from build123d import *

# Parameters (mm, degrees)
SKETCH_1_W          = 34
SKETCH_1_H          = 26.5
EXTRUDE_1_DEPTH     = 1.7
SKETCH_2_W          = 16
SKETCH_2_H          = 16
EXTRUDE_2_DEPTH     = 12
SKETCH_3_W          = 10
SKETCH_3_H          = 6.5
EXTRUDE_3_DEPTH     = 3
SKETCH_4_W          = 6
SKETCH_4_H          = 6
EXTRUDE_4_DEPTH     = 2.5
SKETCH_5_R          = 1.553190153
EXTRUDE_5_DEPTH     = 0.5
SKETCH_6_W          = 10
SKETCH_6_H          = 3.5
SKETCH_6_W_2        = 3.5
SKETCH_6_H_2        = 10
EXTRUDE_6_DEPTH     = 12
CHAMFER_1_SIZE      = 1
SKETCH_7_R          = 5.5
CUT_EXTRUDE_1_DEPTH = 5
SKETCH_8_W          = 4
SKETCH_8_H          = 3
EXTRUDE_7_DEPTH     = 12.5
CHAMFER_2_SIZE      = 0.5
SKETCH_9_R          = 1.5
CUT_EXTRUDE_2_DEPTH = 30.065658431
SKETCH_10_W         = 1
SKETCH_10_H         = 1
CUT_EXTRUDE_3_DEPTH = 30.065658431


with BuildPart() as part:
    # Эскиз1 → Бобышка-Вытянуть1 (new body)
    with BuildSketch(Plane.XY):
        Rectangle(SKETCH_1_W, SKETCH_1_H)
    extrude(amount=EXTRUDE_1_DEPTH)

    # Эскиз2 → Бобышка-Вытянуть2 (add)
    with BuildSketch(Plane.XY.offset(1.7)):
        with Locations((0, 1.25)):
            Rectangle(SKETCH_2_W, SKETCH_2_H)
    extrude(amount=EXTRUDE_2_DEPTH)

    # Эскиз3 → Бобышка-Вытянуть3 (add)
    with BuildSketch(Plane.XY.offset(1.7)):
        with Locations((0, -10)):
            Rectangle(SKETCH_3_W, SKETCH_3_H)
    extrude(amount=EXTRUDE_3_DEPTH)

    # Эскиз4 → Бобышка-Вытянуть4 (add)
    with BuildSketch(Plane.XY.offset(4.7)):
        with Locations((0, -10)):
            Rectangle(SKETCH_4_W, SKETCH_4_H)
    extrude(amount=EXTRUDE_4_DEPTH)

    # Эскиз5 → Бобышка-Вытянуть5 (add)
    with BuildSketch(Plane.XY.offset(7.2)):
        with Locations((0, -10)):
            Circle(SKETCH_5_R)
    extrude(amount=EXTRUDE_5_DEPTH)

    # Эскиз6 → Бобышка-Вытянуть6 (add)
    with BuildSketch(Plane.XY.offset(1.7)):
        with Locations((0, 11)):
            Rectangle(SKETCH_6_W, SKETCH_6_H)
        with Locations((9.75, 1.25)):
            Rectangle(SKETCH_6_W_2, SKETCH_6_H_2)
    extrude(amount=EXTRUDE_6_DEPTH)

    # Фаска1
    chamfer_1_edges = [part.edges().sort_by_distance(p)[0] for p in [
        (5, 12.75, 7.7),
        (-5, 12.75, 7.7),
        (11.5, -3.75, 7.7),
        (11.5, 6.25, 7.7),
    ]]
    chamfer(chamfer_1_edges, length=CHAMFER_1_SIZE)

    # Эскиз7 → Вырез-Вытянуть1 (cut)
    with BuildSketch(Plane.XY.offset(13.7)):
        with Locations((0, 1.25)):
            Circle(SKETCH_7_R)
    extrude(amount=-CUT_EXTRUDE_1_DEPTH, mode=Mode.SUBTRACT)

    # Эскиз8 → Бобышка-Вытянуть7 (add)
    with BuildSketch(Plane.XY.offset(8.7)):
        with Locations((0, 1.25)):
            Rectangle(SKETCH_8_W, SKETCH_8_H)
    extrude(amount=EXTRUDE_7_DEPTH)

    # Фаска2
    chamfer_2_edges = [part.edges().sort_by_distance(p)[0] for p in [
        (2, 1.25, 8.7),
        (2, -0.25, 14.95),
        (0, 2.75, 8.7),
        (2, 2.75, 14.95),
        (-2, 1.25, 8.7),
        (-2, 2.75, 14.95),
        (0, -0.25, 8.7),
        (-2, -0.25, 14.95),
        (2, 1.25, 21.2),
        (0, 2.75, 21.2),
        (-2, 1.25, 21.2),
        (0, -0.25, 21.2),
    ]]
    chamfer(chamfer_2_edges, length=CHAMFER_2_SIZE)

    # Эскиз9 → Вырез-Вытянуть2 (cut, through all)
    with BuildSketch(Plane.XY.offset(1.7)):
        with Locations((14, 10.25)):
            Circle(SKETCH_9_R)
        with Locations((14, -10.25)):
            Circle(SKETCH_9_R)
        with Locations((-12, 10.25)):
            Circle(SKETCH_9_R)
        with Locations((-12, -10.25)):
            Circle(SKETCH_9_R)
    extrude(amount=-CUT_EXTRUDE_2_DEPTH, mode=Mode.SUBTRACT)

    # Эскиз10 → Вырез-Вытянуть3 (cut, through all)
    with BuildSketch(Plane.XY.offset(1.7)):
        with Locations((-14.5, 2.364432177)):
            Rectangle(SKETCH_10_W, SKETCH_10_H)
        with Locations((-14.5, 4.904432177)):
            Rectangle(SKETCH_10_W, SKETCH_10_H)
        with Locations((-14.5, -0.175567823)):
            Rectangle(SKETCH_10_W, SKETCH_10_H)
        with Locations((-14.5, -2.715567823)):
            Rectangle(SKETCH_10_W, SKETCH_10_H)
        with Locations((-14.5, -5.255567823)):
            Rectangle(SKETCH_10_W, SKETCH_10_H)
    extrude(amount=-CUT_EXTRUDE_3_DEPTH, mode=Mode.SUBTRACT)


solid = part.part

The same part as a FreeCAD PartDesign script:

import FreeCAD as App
import Part
import Sketcher
Q = App.Units.Quantity


def edges_at(feature, points):
    """Names of the edges that pass closest to the given points."""
    edges = feature.Shape.Edges
    near = lambda p: min(range(len(edges)), key=lambda i: edges[i].distToShape(Part.Vertex(*p))[0])
    return sorted({f"Edge{near(p) + 1}" for p in points})


def add_polygon(sketch, points):
    """Adds a closed chain of lines whose ends are joined by coincident constraints."""
    first, n = sketch.GeometryCount, len(points)
    for a, b in zip(points, points[1:] + points[:1]):
        sketch.addGeometry(Part.LineSegment(App.Vector(*a, 0), App.Vector(*b, 0)), False)
    for i in range(n):
        sketch.addConstraint(Sketcher.Constraint("Coincident", first + i, 2, first + (i + 1) % n, 1))

doc = App.newDocument("Part")
body = doc.addObject("PartDesign::Body", "Body")

sketch1 = doc.addObject("Sketcher::SketchObject", "Sketch")
body.addObject(sketch1)
sketch1.AttachmentSupport = (doc.XY_Plane, [""])
sketch1.MapMode = "FlatFace"
add_polygon(sketch1, [(-17, 13.25), (-17, -13.25), (17, -13.25), (17, 13.25)])
sketch1.addConstraint([
    Sketcher.Constraint("Vertical", 0),
    Sketcher.Constraint("Horizontal", 1),
    Sketcher.Constraint("Vertical", 2),
    Sketcher.Constraint("Horizontal", 3),
    Sketcher.Constraint("Symmetric", 0, 2, 2, 2, -1, 1),
    Sketcher.Constraint("DistanceX", 1, 1, 1, 2, Q("34 mm")),
    Sketcher.Constraint("DistanceY", 0, 2, 0, 1, Q("26.5 mm")),
])
pad1 = doc.addObject("PartDesign::Pad", "Pad")
body.addObject(pad1)
pad1.Profile = sketch1
pad1.Length = 1.7

sketch2 = doc.addObject("Sketcher::SketchObject", "Sketch001")
body.addObject(sketch2)
sketch2.AttachmentSupport = (doc.XY_Plane, [""])
sketch2.MapMode = "FlatFace"
sketch2.AttachmentOffset = App.Placement(App.Vector(0, 0, 1.7), App.Rotation())
add_polygon(sketch2, [(-8, 9.25), (-8, -6.75), (8, -6.75), (8, 9.25)])
sketch2.addConstraint([
    Sketcher.Constraint("Vertical", 0),
    Sketcher.Constraint("Horizontal", 1),
    Sketcher.Constraint("Vertical", 2),
    Sketcher.Constraint("Horizontal", 3),
    Sketcher.Constraint("Equal", 3, 0),
    Sketcher.Constraint("DistanceX", 1, 1, 1, 2, Q("16 mm")),
    Sketcher.Constraint("DistanceX", 0, 2, -1, 1, Q("8 mm")),
    Sketcher.Constraint("DistanceY", 0, 2, -1, 1, Q("6.75 mm")),
])
pad2 = doc.addObject("PartDesign::Pad", "Pad001")
body.addObject(pad2)
pad2.Profile = sketch2
pad2.Length = 12

sketch3 = doc.addObject("Sketcher::SketchObject", "Sketch002")
body.addObject(sketch3)
sketch3.AttachmentSupport = (doc.XY_Plane, [""])
sketch3.MapMode = "FlatFace"
sketch3.AttachmentOffset = App.Placement(App.Vector(0, 0, 1.7), App.Rotation())
add_polygon(sketch3, [(-5, -6.75), (-5, -13.25), (5, -13.25), (5, -6.75)])
sketch3.addConstraint([
    Sketcher.Constraint("Vertical", 0),
    Sketcher.Constraint("Horizontal", 1),
    Sketcher.Constraint("Vertical", 2),
    Sketcher.Constraint("Horizontal", 3),
    Sketcher.Constraint("DistanceX", 1, 1, 1, 2, Q("10 mm")),
    Sketcher.Constraint("DistanceY", 0, 2, 0, 1, Q("6.5 mm")),
    Sketcher.Constraint("DistanceX", 0, 2, -1, 1, Q("5 mm")),
    Sketcher.Constraint("DistanceY", 0, 2, -1, 1, Q("13.25 mm")),
])
pad3 = doc.addObject("PartDesign::Pad", "Pad002")
body.addObject(pad3)
pad3.Profile = sketch3
pad3.Length = 3

sketch4 = doc.addObject("Sketcher::SketchObject", "Sketch003")
body.addObject(sketch4)
sketch4.AttachmentSupport = (doc.XY_Plane, [""])
sketch4.MapMode = "FlatFace"
sketch4.AttachmentOffset = App.Placement(App.Vector(0, 0, 4.7), App.Rotation())
add_polygon(sketch4, [(-3, -7), (-3, -13), (3, -13), (3, -7)])
sketch4.addConstraint([
    Sketcher.Constraint("Vertical", 0),
    Sketcher.Constraint("Horizontal", 1),
    Sketcher.Constraint("Vertical", 2),
    Sketcher.Constraint("Horizontal", 3),
    Sketcher.Constraint("Equal", 3, 0),
    Sketcher.Constraint("DistanceX", 1, 1, 1, 2, Q("6 mm")),
    Sketcher.Constraint("DistanceX", 0, 2, -1, 1, Q("3 mm")),
    Sketcher.Constraint("DistanceY", 0, 2, -1, 1, Q("13 mm")),
])
pad4 = doc.addObject("PartDesign::Pad", "Pad003")
body.addObject(pad4)
pad4.Profile = sketch4
pad4.Length = 2.5

sketch5 = doc.addObject("Sketcher::SketchObject", "Sketch004")
body.addObject(sketch5)
sketch5.AttachmentSupport = (doc.XY_Plane, [""])
sketch5.MapMode = "FlatFace"
sketch5.AttachmentOffset = App.Placement(App.Vector(0, 0, 7.2), App.Rotation())
sketch5.addGeometry(Part.Circle(App.Vector(0, -10, 0), App.Vector(0, 0, 1), 1.55319), False)
sketch5.addConstraint([
    Sketcher.Constraint("PointOnObject", 0, 3, -2),
    Sketcher.Constraint("DistanceY", 0, 3, -1, 1, Q("10 mm")),
    Sketcher.Constraint("Diameter", 0, Q("3.10638 mm")),
])
pad5 = doc.addObject("PartDesign::Pad", "Pad004")
body.addObject(pad5)
pad5.Profile = sketch5
pad5.Length = 0.5

sketch6 = doc.addObject("Sketcher::SketchObject", "Sketch005")
body.addObject(sketch6)
sketch6.AttachmentSupport = (doc.XY_Plane, [""])
sketch6.MapMode = "FlatFace"
sketch6.AttachmentOffset = App.Placement(App.Vector(0, 0, 1.7), App.Rotation())
add_polygon(sketch6, [(-5, 12.75), (-5, 9.25), (5, 9.25), (5, 12.75)])
add_polygon(sketch6, [(8, 6.25), (8, -3.75), (11.5, -3.75), (11.5, 6.25)])
sketch6.addConstraint([
    Sketcher.Constraint("Vertical", 0),
    Sketcher.Constraint("Horizontal", 1),
    Sketcher.Constraint("Vertical", 2),
    Sketcher.Constraint("Horizontal", 3),
    Sketcher.Constraint("Vertical", 4),
    Sketcher.Constraint("Horizontal", 5),
    Sketcher.Constraint("Vertical", 6),
    Sketcher.Constraint("Horizontal", 7),
    Sketcher.Constraint("Equal", 7, 0),
    Sketcher.Constraint("Equal", 3, 4),
    Sketcher.Constraint("DistanceX", 1, 1, 1, 2, Q("10 mm")),
    Sketcher.Constraint("DistanceX", 5, 1, 5, 2, Q("3.5 mm")),
    Sketcher.Constraint("DistanceX", 0, 2, -1, 1, Q("5 mm")),
    Sketcher.Constraint("DistanceX", -1, 1, 4, 2, Q("8 mm")),
    Sketcher.Constraint("DistanceY", 4, 2, 1, 2, Q("13 mm")),
    Sketcher.Constraint("DistanceY", -1, 1, 0, 2, Q("9.25 mm")),
])
pad6 = doc.addObject("PartDesign::Pad", "Pad005")
body.addObject(pad6)
pad6.Profile = sketch6
pad6.Length = 12
doc.recompute()

chamfer = doc.addObject("PartDesign::Chamfer", "Chamfer")
body.addObject(chamfer)
chamfer.Base = (pad6, edges_at(pad6, [
    (5, 12.75, 7.7),
    (-5, 12.75, 7.7),
    (11.5, -3.75, 7.7),
    (11.5, 6.25, 7.7),
]))
chamfer.Size = 1

sketch7 = doc.addObject("Sketcher::SketchObject", "Sketch006")
body.addObject(sketch7)
sketch7.AttachmentSupport = (doc.XY_Plane, [""])
sketch7.MapMode = "FlatFace"
sketch7.AttachmentOffset = App.Placement(App.Vector(0, 0, 13.7), App.Rotation())
sketch7.addGeometry(Part.Circle(App.Vector(0, 1.25, 0), App.Vector(0, 0, 1), 5.5), False)
sketch7.addConstraint([
    Sketcher.Constraint("PointOnObject", 0, 3, -2),
    Sketcher.Constraint("Diameter", 0, Q("11 mm")),
    Sketcher.Constraint("DistanceY", -1, 1, 0, 3, Q("1.25 mm")),
])
pocket1 = doc.addObject("PartDesign::Pocket", "Pocket")
body.addObject(pocket1)
pocket1.Profile = sketch7
pocket1.Length = 5

sketch8 = doc.addObject("Sketcher::SketchObject", "Sketch007")
body.addObject(sketch8)
sketch8.AttachmentSupport = (doc.XY_Plane, [""])
sketch8.MapMode = "FlatFace"
sketch8.AttachmentOffset = App.Placement(App.Vector(0, 0, 8.7), App.Rotation())
add_polygon(sketch8, [(-2, 2.75), (-2, -0.25), (2, -0.25), (2, 2.75)])
sketch8.addConstraint([
    Sketcher.Constraint("Vertical", 0),
    Sketcher.Constraint("Horizontal", 1),
    Sketcher.Constraint("Vertical", 2),
    Sketcher.Constraint("Horizontal", 3),
    Sketcher.Constraint("DistanceX", 1, 1, 1, 2, Q("4 mm")),
    Sketcher.Constraint("DistanceY", 0, 2, 0, 1, Q("3 mm")),
    Sketcher.Constraint("DistanceX", 0, 2, -1, 1, Q("2 mm")),
    Sketcher.Constraint("DistanceY", 0, 2, -1, 1, Q("0.25 mm")),
])
pad7 = doc.addObject("PartDesign::Pad", "Pad006")
body.addObject(pad7)
pad7.Profile = sketch8
pad7.Length = 12.5
doc.recompute()

chamfer2 = doc.addObject("PartDesign::Chamfer", "Chamfer001")
body.addObject(chamfer2)
chamfer2.Base = (pad7, edges_at(pad7, [
    (2, 1.25, 8.7),
    (2, -0.25, 14.95),
    (0, 2.75, 8.7),
    (2, 2.75, 14.95),
    (-2, 1.25, 8.7),
    (-2, 2.75, 14.95),
    (0, -0.25, 8.7),
    (-2, -0.25, 14.95),
    (2, 1.25, 21.2),
    (0, 2.75, 21.2),
    (-2, 1.25, 21.2),
    (0, -0.25, 21.2),
]))
chamfer2.Size = 0.5

sketch9 = doc.addObject("Sketcher::SketchObject", "Sketch008")
body.addObject(sketch9)
sketch9.AttachmentSupport = (doc.XY_Plane, [""])
sketch9.MapMode = "FlatFace"
sketch9.AttachmentOffset = App.Placement(App.Vector(0, 0, 1.7), App.Rotation())
sketch9.addGeometry([
    Part.Circle(App.Vector(14, 10.25, 0), App.Vector(0, 0, 1), 1.5),
    Part.Circle(App.Vector(14, -10.25, 0), App.Vector(0, 0, 1), 1.5),
    Part.Circle(App.Vector(-12, 10.25, 0), App.Vector(0, 0, 1), 1.5),
    Part.Circle(App.Vector(-12, -10.25, 0), App.Vector(0, 0, 1), 1.5),
], False)
sketch9.addConstraint([
    Sketcher.Constraint("Equal", 0, 1),
    Sketcher.Constraint("Equal", 1, 2),
    Sketcher.Constraint("Equal", 2, 3),
    Sketcher.Constraint("Symmetric", 0, 3, 1, 3, -1),
    Sketcher.Constraint("Symmetric", 2, 3, 3, 3, -1),
    Sketcher.Constraint("Horizontal", 0, 3, 2, 3),
    Sketcher.Constraint("Diameter", 0, Q("3 mm")),
    Sketcher.Constraint("DistanceX", -1, 1, 0, 3, Q("14 mm")),
    Sketcher.Constraint("DistanceX", 2, 3, -1, 1, Q("12 mm")),
    Sketcher.Constraint("DistanceY", 1, 3, 0, 3, Q("20.5 mm")),
])
pocket2 = doc.addObject("PartDesign::Pocket", "Pocket001")
body.addObject(pocket2)
pocket2.Profile = sketch9
pocket2.Type = "ThroughAll"

sketch10 = doc.addObject("Sketcher::SketchObject", "Sketch009")
body.addObject(sketch10)
sketch10.AttachmentSupport = (doc.XY_Plane, [""])
sketch10.MapMode = "FlatFace"
sketch10.AttachmentOffset = App.Placement(App.Vector(0, 0, 1.7), App.Rotation())
add_polygon(sketch10, [(-15, 2.864432), (-15, 1.864432), (-14, 1.864432), (-14, 2.864432)])
add_polygon(sketch10, [(-15, 5.404432), (-15, 4.404432), (-14, 4.404432), (-14, 5.404432)])
add_polygon(sketch10, [(-15, 0.324432), (-15, -0.675568), (-14, -0.675568), (-14, 0.324432)])
add_polygon(sketch10, [(-15, -2.215568), (-15, -3.215568), (-14, -3.215568), (-14, -2.215568)])
add_polygon(sketch10, [(-15, -4.755568), (-15, -5.755568), (-14, -5.755568), (-14, -4.755568)])
sketch10.addConstraint([
    Sketcher.Constraint("Vertical", 0),
    Sketcher.Constraint("Horizontal", 1),
    Sketcher.Constraint("Vertical", 2),
    Sketcher.Constraint("Horizontal", 3),
    Sketcher.Constraint("Vertical", 4),
    Sketcher.Constraint("Horizontal", 5),
    Sketcher.Constraint("Vertical", 6),
    Sketcher.Constraint("Horizontal", 7),
    Sketcher.Constraint("Vertical", 8),
    Sketcher.Constraint("Horizontal", 9),
    Sketcher.Constraint("Vertical", 10),
    Sketcher.Constraint("Horizontal", 11),
    Sketcher.Constraint("Vertical", 12),
    Sketcher.Constraint("Horizontal", 13),
    Sketcher.Constraint("Vertical", 14),
    Sketcher.Constraint("Horizontal", 15),
    Sketcher.Constraint("Vertical", 16),
    Sketcher.Constraint("Horizontal", 17),
    Sketcher.Constraint("Vertical", 18),
    Sketcher.Constraint("Horizontal", 19),
    Sketcher.Constraint("Vertical", 3, 2, 4, 2),
    Sketcher.Constraint("Vertical", 2, 2, 5, 2),
    Sketcher.Constraint("Vertical", 7, 2, 8, 2),
    Sketcher.Constraint("Vertical", 6, 2, 9, 2),
    Sketcher.Constraint("Vertical", 11, 2, 12, 2),
    Sketcher.Constraint("Vertical", 10, 2, 13, 2),
    Sketcher.Constraint("Vertical", 15, 2, 16, 2),
    Sketcher.Constraint("Vertical", 14, 2, 17, 2),
    Sketcher.Constraint("Equal", 19, 0),
    Sketcher.Constraint("Equal", 2, 4),
    Sketcher.Constraint("Equal", 6, 8),
    Sketcher.Constraint("Equal", 10, 12),
    Sketcher.Constraint("Equal", 14, 16),
    Sketcher.Constraint("DistanceX", 1, 1, 1, 2, Q("1 mm")),
    Sketcher.Constraint("DistanceX", 0, 2, -1, 1, Q("15 mm")),
    Sketcher.Constraint("DistanceY", 3, 2, 4, 2, Q("1.54 mm")),
    Sketcher.Constraint("DistanceY", 8, 2, 0, 2, Q("2.54 mm")),
    Sketcher.Constraint("DistanceY", 12, 2, 8, 2, Q("2.54 mm")),
    Sketcher.Constraint("DistanceY", 16, 2, 12, 2, Q("2.54 mm")),
    Sketcher.Constraint("DistanceY", -1, 1, 0, 2, Q("1.864432 mm")),
])
pocket3 = doc.addObject("PartDesign::Pocket", "Pocket002")
body.addObject(pocket3)
pocket3.Profile = sketch10
pocket3.Type = "ThroughAll"

doc.recompute()
